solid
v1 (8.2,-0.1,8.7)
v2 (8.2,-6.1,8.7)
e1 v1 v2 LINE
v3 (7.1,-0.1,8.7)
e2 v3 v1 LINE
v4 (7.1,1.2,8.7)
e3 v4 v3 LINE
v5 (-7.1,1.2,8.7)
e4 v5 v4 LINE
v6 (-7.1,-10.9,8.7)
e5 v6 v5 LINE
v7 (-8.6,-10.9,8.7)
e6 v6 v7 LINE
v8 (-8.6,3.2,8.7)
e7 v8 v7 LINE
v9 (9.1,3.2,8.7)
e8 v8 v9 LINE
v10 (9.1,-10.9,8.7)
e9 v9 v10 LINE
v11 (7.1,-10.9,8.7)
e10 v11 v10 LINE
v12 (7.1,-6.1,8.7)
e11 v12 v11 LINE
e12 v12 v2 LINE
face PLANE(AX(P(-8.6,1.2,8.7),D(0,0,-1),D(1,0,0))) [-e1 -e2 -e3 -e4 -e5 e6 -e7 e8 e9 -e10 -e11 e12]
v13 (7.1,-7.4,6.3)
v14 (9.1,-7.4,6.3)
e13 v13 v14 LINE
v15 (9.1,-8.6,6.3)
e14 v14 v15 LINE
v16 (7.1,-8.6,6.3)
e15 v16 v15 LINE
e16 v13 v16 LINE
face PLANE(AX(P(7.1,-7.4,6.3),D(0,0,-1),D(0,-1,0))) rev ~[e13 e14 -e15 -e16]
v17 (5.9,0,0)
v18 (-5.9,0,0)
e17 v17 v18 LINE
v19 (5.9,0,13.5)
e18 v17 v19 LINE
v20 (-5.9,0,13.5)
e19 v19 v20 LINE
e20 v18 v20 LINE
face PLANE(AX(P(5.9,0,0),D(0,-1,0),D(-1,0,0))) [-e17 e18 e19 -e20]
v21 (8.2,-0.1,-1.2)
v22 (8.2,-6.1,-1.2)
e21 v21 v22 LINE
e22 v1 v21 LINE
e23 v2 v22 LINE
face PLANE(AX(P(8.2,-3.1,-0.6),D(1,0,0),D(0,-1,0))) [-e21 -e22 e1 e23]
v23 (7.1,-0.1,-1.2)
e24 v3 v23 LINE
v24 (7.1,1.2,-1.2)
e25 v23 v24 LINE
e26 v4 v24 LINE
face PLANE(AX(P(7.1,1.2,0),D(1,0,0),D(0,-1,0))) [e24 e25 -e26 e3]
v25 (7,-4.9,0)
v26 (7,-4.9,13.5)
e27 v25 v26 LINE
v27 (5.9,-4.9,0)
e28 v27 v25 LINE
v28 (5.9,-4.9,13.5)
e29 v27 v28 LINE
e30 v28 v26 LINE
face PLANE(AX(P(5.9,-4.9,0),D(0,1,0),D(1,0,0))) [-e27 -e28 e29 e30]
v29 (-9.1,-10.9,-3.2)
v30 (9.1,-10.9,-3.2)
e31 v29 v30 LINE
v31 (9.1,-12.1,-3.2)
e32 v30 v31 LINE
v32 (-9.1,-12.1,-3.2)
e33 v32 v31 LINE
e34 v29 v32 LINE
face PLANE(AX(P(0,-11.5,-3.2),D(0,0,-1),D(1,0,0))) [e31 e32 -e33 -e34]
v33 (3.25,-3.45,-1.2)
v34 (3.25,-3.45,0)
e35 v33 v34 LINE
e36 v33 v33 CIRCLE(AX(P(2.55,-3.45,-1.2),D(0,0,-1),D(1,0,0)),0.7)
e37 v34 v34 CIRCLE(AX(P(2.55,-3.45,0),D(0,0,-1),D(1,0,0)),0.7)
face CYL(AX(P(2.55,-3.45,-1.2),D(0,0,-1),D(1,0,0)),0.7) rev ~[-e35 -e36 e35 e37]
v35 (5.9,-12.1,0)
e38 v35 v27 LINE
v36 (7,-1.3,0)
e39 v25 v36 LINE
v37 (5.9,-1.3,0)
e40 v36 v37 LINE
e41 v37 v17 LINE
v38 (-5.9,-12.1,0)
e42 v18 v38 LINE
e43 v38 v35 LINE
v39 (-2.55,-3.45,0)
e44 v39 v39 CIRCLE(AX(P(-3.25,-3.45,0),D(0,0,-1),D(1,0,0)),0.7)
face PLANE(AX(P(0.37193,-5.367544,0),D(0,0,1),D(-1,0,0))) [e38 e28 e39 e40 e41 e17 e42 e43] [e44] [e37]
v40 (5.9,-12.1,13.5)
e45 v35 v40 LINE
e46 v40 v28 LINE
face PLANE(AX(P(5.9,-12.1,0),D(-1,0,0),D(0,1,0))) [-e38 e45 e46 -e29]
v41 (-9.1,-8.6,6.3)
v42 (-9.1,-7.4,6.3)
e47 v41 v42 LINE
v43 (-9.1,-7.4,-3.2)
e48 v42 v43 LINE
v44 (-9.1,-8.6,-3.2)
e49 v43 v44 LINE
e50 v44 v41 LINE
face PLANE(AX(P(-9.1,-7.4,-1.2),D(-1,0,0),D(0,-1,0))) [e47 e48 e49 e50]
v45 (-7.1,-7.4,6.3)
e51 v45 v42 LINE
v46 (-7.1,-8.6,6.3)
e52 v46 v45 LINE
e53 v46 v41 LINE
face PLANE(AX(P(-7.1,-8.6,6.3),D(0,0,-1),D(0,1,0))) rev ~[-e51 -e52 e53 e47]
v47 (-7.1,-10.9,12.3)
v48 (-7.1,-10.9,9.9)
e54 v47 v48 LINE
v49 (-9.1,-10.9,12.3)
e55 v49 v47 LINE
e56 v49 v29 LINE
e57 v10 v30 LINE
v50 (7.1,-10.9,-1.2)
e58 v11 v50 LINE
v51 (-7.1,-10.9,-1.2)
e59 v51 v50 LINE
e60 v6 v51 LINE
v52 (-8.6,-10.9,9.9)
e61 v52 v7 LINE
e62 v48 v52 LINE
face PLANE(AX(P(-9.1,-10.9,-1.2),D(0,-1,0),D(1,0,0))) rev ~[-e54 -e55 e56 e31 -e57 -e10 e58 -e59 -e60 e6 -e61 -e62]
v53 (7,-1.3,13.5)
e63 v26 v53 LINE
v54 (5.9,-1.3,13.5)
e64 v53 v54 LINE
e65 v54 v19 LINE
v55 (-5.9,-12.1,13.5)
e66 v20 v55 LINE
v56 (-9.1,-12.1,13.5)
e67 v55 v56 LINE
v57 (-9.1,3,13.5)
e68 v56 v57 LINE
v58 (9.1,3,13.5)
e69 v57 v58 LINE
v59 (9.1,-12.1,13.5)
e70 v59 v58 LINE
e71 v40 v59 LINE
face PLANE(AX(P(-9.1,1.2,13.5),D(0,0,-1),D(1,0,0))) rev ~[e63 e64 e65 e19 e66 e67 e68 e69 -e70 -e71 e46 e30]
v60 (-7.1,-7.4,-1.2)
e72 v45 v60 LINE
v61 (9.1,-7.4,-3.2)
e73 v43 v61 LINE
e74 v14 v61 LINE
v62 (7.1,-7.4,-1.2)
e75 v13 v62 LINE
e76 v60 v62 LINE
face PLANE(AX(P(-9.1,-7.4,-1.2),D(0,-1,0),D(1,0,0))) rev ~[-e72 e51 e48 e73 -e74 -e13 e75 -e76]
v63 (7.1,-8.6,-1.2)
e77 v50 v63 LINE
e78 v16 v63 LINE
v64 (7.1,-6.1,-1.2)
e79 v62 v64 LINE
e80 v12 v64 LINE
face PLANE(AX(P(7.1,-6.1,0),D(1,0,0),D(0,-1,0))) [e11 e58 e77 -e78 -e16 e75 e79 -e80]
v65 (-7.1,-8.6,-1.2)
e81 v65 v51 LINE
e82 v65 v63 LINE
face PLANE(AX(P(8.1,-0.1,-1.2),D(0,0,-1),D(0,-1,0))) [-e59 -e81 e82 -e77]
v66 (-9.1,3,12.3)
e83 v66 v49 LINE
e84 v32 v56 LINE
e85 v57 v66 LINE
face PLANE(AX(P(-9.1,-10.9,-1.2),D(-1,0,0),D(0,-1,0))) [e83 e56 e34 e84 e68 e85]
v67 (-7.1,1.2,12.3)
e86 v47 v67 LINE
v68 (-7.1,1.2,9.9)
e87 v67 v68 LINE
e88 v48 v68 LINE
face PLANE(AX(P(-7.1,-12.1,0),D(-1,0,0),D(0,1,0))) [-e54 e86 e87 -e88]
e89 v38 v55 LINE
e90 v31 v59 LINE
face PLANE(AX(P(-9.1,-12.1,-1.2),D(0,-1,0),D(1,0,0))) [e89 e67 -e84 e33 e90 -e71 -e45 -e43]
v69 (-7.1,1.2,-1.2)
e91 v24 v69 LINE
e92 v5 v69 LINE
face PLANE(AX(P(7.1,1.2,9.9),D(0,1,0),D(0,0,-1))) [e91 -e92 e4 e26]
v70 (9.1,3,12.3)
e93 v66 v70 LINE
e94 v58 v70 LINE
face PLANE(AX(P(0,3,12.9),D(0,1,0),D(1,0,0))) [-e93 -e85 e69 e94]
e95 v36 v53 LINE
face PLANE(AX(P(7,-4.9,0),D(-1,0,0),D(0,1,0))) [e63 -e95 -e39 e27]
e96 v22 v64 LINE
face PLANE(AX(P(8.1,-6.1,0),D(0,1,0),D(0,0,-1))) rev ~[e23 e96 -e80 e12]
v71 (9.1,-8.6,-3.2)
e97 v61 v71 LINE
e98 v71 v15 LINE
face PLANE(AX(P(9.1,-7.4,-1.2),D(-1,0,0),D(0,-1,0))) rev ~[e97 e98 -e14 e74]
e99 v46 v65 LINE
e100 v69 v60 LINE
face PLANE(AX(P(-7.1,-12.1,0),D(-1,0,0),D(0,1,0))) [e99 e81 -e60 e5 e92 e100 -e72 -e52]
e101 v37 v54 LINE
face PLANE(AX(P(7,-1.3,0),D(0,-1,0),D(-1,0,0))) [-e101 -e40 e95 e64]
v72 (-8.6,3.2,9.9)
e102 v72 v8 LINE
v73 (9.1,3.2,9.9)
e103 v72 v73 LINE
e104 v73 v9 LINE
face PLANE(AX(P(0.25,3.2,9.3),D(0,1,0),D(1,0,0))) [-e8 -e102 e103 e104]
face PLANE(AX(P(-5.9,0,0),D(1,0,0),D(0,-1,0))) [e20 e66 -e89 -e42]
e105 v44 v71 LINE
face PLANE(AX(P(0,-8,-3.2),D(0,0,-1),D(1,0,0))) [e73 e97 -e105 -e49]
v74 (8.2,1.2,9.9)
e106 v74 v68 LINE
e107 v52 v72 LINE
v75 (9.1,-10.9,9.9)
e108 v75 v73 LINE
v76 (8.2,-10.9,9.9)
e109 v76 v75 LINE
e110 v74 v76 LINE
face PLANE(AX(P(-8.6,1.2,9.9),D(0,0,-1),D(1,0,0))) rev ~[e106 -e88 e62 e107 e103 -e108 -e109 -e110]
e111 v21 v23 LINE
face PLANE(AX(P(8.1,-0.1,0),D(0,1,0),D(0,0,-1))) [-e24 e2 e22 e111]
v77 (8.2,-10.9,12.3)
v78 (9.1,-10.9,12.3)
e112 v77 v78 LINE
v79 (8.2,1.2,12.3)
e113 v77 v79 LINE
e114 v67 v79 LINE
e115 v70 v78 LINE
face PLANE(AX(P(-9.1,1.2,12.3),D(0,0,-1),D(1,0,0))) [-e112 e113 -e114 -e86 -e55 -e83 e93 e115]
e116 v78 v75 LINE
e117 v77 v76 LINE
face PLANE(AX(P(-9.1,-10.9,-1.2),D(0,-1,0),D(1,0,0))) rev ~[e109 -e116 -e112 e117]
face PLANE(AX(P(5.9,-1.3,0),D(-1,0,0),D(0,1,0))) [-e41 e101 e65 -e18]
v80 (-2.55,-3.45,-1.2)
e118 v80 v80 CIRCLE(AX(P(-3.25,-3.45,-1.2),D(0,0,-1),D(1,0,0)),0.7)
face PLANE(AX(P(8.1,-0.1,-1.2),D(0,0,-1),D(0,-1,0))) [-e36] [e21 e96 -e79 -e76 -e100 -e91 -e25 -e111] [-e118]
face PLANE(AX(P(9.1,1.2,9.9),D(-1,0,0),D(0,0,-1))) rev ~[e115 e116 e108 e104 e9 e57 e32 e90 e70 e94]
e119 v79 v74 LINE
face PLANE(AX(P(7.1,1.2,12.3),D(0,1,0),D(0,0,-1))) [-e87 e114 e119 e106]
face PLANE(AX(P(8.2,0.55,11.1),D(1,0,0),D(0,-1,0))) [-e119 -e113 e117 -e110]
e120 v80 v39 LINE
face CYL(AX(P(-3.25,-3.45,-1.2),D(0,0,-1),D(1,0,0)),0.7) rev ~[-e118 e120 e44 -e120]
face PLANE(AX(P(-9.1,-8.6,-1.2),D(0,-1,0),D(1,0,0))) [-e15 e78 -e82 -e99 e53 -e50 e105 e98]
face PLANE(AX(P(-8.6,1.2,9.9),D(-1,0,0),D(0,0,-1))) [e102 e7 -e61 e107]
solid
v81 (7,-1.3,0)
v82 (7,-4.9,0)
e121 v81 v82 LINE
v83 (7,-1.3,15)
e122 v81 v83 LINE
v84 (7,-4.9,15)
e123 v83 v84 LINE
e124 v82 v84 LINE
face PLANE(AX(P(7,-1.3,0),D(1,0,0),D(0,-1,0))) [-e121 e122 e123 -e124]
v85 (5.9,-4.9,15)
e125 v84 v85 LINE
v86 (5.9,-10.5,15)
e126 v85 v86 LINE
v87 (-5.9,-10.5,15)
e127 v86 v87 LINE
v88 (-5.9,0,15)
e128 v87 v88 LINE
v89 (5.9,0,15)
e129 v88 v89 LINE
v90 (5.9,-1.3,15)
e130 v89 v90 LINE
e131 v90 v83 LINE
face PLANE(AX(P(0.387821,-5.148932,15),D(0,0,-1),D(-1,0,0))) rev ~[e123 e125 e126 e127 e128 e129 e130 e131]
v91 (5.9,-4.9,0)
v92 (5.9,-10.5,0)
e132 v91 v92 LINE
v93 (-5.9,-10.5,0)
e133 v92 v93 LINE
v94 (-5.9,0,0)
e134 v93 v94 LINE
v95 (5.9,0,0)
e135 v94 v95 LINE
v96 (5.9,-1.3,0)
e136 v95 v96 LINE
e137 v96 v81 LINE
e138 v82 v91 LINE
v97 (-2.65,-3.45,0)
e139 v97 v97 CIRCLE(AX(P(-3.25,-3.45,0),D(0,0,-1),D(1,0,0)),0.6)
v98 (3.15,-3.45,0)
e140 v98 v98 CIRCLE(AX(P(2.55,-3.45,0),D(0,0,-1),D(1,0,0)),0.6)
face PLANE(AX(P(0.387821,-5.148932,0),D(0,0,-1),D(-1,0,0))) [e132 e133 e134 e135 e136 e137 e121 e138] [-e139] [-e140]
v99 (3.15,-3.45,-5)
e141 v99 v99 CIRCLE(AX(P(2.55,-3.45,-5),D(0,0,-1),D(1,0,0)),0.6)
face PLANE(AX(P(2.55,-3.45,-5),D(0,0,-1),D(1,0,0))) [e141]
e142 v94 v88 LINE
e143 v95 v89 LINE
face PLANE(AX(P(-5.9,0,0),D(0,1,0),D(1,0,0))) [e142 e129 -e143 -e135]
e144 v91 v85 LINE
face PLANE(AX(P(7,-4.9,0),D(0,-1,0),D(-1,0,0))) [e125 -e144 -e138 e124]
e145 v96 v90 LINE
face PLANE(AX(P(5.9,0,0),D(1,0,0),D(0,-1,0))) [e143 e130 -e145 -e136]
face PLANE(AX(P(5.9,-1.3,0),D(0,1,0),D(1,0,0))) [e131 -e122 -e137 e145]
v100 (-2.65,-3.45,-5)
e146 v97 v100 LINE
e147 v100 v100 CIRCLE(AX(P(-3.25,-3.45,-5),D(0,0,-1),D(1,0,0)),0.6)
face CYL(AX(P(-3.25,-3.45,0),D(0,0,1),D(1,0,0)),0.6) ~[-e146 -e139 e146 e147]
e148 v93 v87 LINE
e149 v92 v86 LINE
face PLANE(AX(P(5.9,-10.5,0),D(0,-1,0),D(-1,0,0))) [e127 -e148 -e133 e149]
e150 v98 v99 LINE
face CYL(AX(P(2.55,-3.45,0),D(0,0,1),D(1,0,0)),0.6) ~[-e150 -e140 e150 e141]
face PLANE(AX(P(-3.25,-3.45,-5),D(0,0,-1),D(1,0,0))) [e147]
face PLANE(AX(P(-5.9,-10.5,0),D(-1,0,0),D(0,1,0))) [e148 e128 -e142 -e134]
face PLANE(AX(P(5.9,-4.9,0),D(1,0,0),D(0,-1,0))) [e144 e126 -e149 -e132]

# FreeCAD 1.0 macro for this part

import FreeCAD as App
import Part
import Sketcher
from FreeCAD import Vector
Q = App.Units.Quantity


def add_polygon(sketch, points):
    """Adds a closed chain of lines whose ends are joined by coincident constraints."""
    first, n = sketch.GeometryCount, len(points)
    for a, b in zip(points, points[1:] + points[:1]):
        sketch.addGeometry(Part.LineSegment(App.Vector(*a, 0), App.Vector(*b, 0)), False)
    for i in range(n):
        sketch.addConstraint(Sketcher.Constraint("Coincident", first + i, 2, first + (i + 1) % n, 1))

doc = App.newDocument("Part")
body = doc.addObject("PartDesign::Body", "Body")

# Sketch on XY plane
sketch1 = body.newObject("Sketcher::SketchObject", "Sketch")
sketch1.AttachmentSupport = (doc.getObject("XY_Plane"), [""])
sketch1.MapMode = "FlatFace"
add_polygon(sketch1, [(5.9, 0), (-5.9, 0), (-5.9, -10.5), (5.9, -10.5), (5.9, -4.9), (7, -4.9), (7, -1.3), (5.9, -1.3)])  # lines 0-7
sketch1.addConstraint([
    Sketcher.Constraint("Horizontal", 0),
    Sketcher.Constraint("Vertical", 1),
    Sketcher.Constraint("Horizontal", 2),
    Sketcher.Constraint("Vertical", 3),
    Sketcher.Constraint("Horizontal", 4),
    Sketcher.Constraint("Vertical", 5),
    Sketcher.Constraint("Horizontal", 6),
    Sketcher.Constraint("Vertical", 7),
    Sketcher.Constraint("Symmetric", 0, 2, 7, 2, -1, 1),
    Sketcher.Constraint("Vertical", 3, 2, 6, 2),
    Sketcher.Constraint("DistanceX", 0, 2, 0, 1, Q("11.8 mm")),
    Sketcher.Constraint("DistanceX", 4, 1, 4, 2, Q("1.1 mm")),
    Sketcher.Constraint("DistanceY", 1, 2, 1, 1, Q("10.5 mm")),
    Sketcher.Constraint("DistanceY", 3, 1, 3, 2, Q("5.6 mm")),
    Sketcher.Constraint("DistanceY", 5, 1, 5, 2, Q("3.6 mm")),
])
pad1 = body.newObject("PartDesign::Pad", "Pad")
pad1.Profile = sketch1
pad1.Length = 15

# Sketch on XY plane
sketch2 = body.newObject("Sketcher::SketchObject", "Sketch001")
sketch2.AttachmentSupport = (doc.getObject("XY_Plane"), [""])
sketch2.MapMode = "FlatFace"
sketch2.addGeometry(Part.Circle(Vector(2.5, -3.5, 0), Vector(0, 0, 1), 0.6), False)
sketch2.addConstraint([
    Sketcher.Constraint("Diameter", 0, Q("1.2 mm")),
    Sketcher.Constraint("DistanceX", -1, 1, 0, 3, Q("2.55 mm")),
    Sketcher.Constraint("DistanceY", 0, 3, -1, 1, Q("3.45 mm")),
])
pad2 = body.newObject("PartDesign::Pad", "Pad001")
pad2.Profile = sketch2
pad2.Length = 5
pad2.Reversed = True

# Sketch on XY plane
sketch3 = body.newObject("Sketcher::SketchObject", "Sketch002")
sketch3.AttachmentSupport = (doc.getObject("XY_Plane"), [""])
sketch3.MapMode = "FlatFace"
sketch3.addGeometry(Part.Circle(Vector(-3.2, -3.5, 0), Vector(0, 0, 1), 0.6), False)
sketch3.addConstraint([
    Sketcher.Constraint("Diameter", 0, Q("1.2 mm")),
    Sketcher.Constraint("DistanceX", 0, 3, -1, 1, Q("3.25 mm")),
    Sketcher.Constraint("DistanceY", 0, 3, -1, 1, Q("3.45 mm")),
])
pad3 = body.newObject("PartDesign::Pad", "Pad002")
pad3.Profile = sketch3
pad3.Length = 5
pad3.Reversed = True
body2 = doc.addObject("PartDesign::Body", "Body001")

# Sketch on XY plane
sketch4 = body2.newObject("Sketcher::SketchObject", "Sketch003")
sketch4.AttachmentSupport = (doc.getObject("XY_Plane001"), [""])
sketch4.MapMode = "FlatFace"
add_polygon(sketch4, [(-7.1, -12.1), (-7.1, 1.2), (7.1, 1.2), (7.1, -0.1), (8.1, -0.1), (8.1, -6.1), (7.1, -6.1), (7.1, -12.1)])  # lines 0-7
sketch4.addConstraint([
    Sketcher.Constraint("Vertical", 0),
    Sketcher.Constraint("Horizontal", 1),
    Sketcher.Constraint("Vertical", 2),
    Sketcher.Constraint("Horizontal", 3),
    Sketcher.Constraint("Vertical", 4),
    Sketcher.Constraint("Horizontal", 5),
    Sketcher.Constraint("Vertical", 6),
    Sketcher.Constraint("Horizontal", 7),
    Sketcher.Constraint("Vertical", 2, 2, 5, 2),
    Sketcher.Constraint("Equal", 4, 6),
    Sketcher.Constraint("DistanceX", 3, 1, 3, 2, Q("1 mm")),
    Sketcher.Constraint("DistanceY", 4, 2, 4, 1, Q("6 mm")),
    Sketcher.Constraint("DistanceX", 1, 1, 1, 2, Q("14.2 mm")),
    Sketcher.Constraint("DistanceY", 0, 1, 0, 2, Q("13.3 mm")),
    Sketcher.Constraint("DistanceX", 0, 2, -1, 1, Q("7.1 mm")),
    Sketcher.Constraint("DistanceY", -1, 1, 0, 2, Q("1.2 mm")),
])
pad4 = body2.newObject("PartDesign::Pad", "Pad003")
pad4.Profile = sketch4
pad4.Length = 1.2
pad4.Reversed = True

# Sketch on XY plane
sketch5 = body2.newObject("Sketcher::SketchObject", "Sketch004")
sketch5.AttachmentSupport = (doc.getObject("XY_Plane001"), [""])
sketch5.MapMode = "FlatFace"
add_polygon(sketch5, [(-7.1, 1.2), (-7.1, -12.1), (-5.9, -12.1), (-5.9, 0), (5.9, 0), (5.9, -1.3), (7, -1.3), (7, -4.9), (5.9, -4.9), (5.9, -12.1), (7.1, -12.1), (7.1, -6.1), (8.2, -6.1), (8.2, -0.1), (7.1, -0.1), (7.1, 1.2)])  # lines 0-15
sketch5.addConstraint([
    Sketcher.Constraint("Vertical", 0),
    Sketcher.Constraint("Horizontal", 1),
    Sketcher.Constraint("Vertical", 2),
    Sketcher.Constraint("Horizontal", 3),
    Sketcher.Constraint("Vertical", 4),
    Sketcher.Constraint("Horizontal", 5),
    Sketcher.Constraint("Vertical", 6),
    Sketcher.Constraint("Horizontal", 7),
    Sketcher.Constraint("Vertical", 8),
    Sketcher.Constraint("Horizontal", 9),
    Sketcher.Constraint("Vertical", 10),
    Sketcher.Constraint("Horizontal", 11),
    Sketcher.Constraint("Vertical", 12),
    Sketcher.Constraint("Horizontal", 13),
    Sketcher.Constraint("Vertical", 14),
    Sketcher.Constraint("Horizontal", 15),
    Sketcher.Constraint("Symmetric", 2, 2, 3, 2, -1, 1),
    Sketcher.Constraint("Symmetric", 1, 2, 8, 2, -2),
    Sketcher.Constraint("Vertical", 10, 2, 13, 2),
    Sketcher.Constraint("Equal", 1, 9),
    Sketcher.Constraint("Equal", 7, 11),
    Sketcher.Constraint("Equal", 10, 12),
    Sketcher.Constraint("Equal", 4, 14),
    Sketcher.Constraint("DistanceY", 10, 1, 10, 2, Q("6 mm")),
    Sketcher.Constraint("DistanceX", 1, 1, 1, 2, Q("1.2 mm")),
    Sketcher.Constraint("DistanceX", 3, 1, 3, 2, Q("11.8 mm")),
    Sketcher.Constraint("DistanceX", 5, 1, 5, 2, Q("1.1 mm")),
    Sketcher.Constraint("DistanceY", 0, 2, 0, 1, Q("13.3 mm")),
    Sketcher.Constraint("DistanceY", 2, 1, 2, 2, Q("12.1 mm")),
    Sketcher.Constraint("DistanceY", 6, 2, 6, 1, Q("3.6 mm")),
])
pad5 = body2.newObject("PartDesign::Pad", "Pad004")
pad5.Profile = sketch5
pad5.Length = 13.5

# Sketch on YZ plane
sketch6 = body2.newObject("Sketcher::SketchObject", "Sketch005")
sketch6.AttachmentSupport = (doc.getObject("YZ_Plane001"), [""])
sketch6.MapMode = "FlatFace"
sketch6.AttachmentOffset = App.Placement(Vector(0, 0, 7.1), App.Rotation())
add_polygon(sketch6, [(-10.9, -1.2), (-10.9, 13.5), (-12.1, 13.5), (-12.1, -1.2)])  # lines 0-3
sketch6.addConstraint([
    Sketcher.Constraint("Vertical", 0),
    Sketcher.Constraint("Horizontal", 1),
    Sketcher.Constraint("Vertical", 2),
    Sketcher.Constraint("Horizontal", 3),
    Sketcher.Constraint("DistanceX", 1, 2, 1, 1, Q("1.2 mm")),
    Sketcher.Constraint("DistanceY", 0, 1, 0, 2, Q("14.7 mm")),
    Sketcher.Constraint("DistanceX", 0, 2, -1, 1, Q("10.9 mm")),
    Sketcher.Constraint("DistanceY", -1, 1, 0, 2, Q("13.5 mm")),
])
pad6 = body2.newObject("PartDesign::Pad", "Pad005")
pad6.Profile = sketch6
pad6.Length = 2

# Sketch on YZ plane
sketch7 = body2.newObject("Sketcher::SketchObject", "Sketch006")
sketch7.AttachmentSupport = (doc.getObject("YZ_Plane001"), [""])
sketch7.MapMode = "FlatFace"
sketch7.AttachmentOffset = App.Placement(Vector(0, 0, -7.1), App.Rotation())
add_polygon(sketch7, [(-12.1, -1.2), (-12.1, 13.5), (-10.9, 13.5), (-10.9, -1.2)])  # lines 0-3
sketch7.addConstraint([
    Sketcher.Constraint("Vertical", 0),
    Sketcher.Constraint("Horizontal", 1),
    Sketcher.Constraint("Vertical", 2),
    Sketcher.Constraint("Horizontal", 3),
    Sketcher.Constraint("DistanceX", 1, 1, 1, 2, Q("1.2 mm")),
    Sketcher.Constraint("DistanceY", 0, 1, 0, 2, Q("14.7 mm")),
    Sketcher.Constraint("DistanceX", 0, 2, -1, 1, Q("12.1 mm")),
    Sketcher.Constraint("DistanceY", -1, 1, 0, 2, Q("13.5 mm")),
])
pad7 = body2.newObject("PartDesign::Pad", "Pad006")
pad7.Profile = sketch7
pad7.Length = 2
pad7.Reversed = True

# Sketch on XY plane
sketch8 = body2.newObject("Sketcher::SketchObject", "Sketch007")
sketch8.AttachmentSupport = (doc.getObject("XY_Plane001"), [""])
sketch8.MapMode = "FlatFace"
sketch8.AttachmentOffset = App.Placement(Vector(0, 0, 13.5), App.Rotation())
add_polygon(sketch8, [(7.1, 1.2), (7.1, -0.1), (8.2, -0.1), (8.2, -6.1), (7.1, -6.1), (7.1, -10.9), (9.1, -10.9), (9.1, 1.2)])  # lines 0-7
sketch8.addConstraint([
    Sketcher.Constraint("Vertical", 0),
    Sketcher.Constraint("Horizontal", 1),
    Sketcher.Constraint("Vertical", 2),
    Sketcher.Constraint("Horizontal", 3),
    Sketcher.Constraint("Vertical", 4),
    Sketcher.Constraint("Horizontal", 5),
    Sketcher.Constraint("Vertical", 6),
    Sketcher.Constraint("Horizontal", 7),
    Sketcher.Constraint("Vertical", 0, 2, 3, 2),
    Sketcher.Constraint("DistanceX", 5, 1, 5, 2, Q("2 mm")),
    Sketcher.Constraint("DistanceY", 2, 2, 2, 1, Q("6 mm")),
    Sketcher.Constraint("DistanceX", 1, 1, 1, 2, Q("1.1 mm")),
    Sketcher.Constraint("DistanceY", 0, 2, 0, 1, Q("1.3 mm")),
    Sketcher.Constraint("DistanceY", 4, 2, 4, 1, Q("4.8 mm")),
    Sketcher.Constraint("DistanceX", -1, 1, 0, 2, Q("7.1 mm")),
    Sketcher.Constraint("DistanceY", 0, 2, -1, 1, Q("0.1 mm")),
])
pad8 = body2.newObject("PartDesign::Pad", "Pad007")
pad8.Profile = sketch8
pad8.Length = 1.2
pad8.Reversed = True

# Sketch on XY plane
sketch9 = body2.newObject("Sketcher::SketchObject", "Sketch008")
sketch9.AttachmentSupport = (doc.getObject("XY_Plane001"), [""])
sketch9.MapMode = "FlatFace"
sketch9.AttachmentOffset = App.Placement(Vector(0, 0, 13.5), App.Rotation())
add_polygon(sketch9, [(-9.1, 1.2), (-9.1, -10.9), (-7.1, -10.9), (-7.1, 1.2)])  # lines 0-3
sketch9.addConstraint([
    Sketcher.Constraint("Vertical", 0),
    Sketcher.Constraint("Horizontal", 1),
    Sketcher.Constraint("Vertical", 2),
    Sketcher.Constraint("Horizontal", 3),
    Sketcher.Constraint("DistanceX", 1, 1, 1, 2, Q("2 mm")),
    Sketcher.Constraint("DistanceY", 0, 2, 0, 1, Q("12.1 mm")),
    Sketcher.Constraint("DistanceX", 0, 2, -1, 1, Q("9.1 mm")),
    Sketcher.Constraint("DistanceY", 0, 2, -1, 1, Q("10.9 mm")),
])
pad9 = body2.newObject("PartDesign::Pad", "Pad008")
pad9.Profile = sketch9
pad9.Length = 1.2
pad9.Reversed = True

# Sketch on XZ plane
sketch10 = body2.newObject("Sketcher::SketchObject", "Sketch009")
sketch10.AttachmentSupport = (doc.getObject("XZ_Plane001"), [""])
sketch10.MapMode = "FlatFace"
sketch10.AttachmentOffset = App.Placement(Vector(0, 0, -1.2), App.Rotation())
add_polygon(sketch10, [(-9.1, 12.3), (-9.1, 13.5), (9.1, 13.5), (9.1, 12.3)])  # lines 0-3
sketch10.addConstraint([
    Sketcher.Constraint("Vertical", 0),
    Sketcher.Constraint("Horizontal", 1),
    Sketcher.Constraint("Vertical", 2),
    Sketcher.Constraint("Horizontal", 3),
    Sketcher.Constraint("DistanceX", 1, 1, 1, 2, Q("18.2 mm")),
    Sketcher.Constraint("DistanceY", 0, 1, 0, 2, Q("1.2 mm")),
    Sketcher.Constraint("DistanceX", 0, 2, -1, 1, Q("9.1 mm")),
    Sketcher.Constraint("DistanceY", -1, 1, 0, 2, Q("13.5 mm")),
])
pad10 = body2.newObject("PartDesign::Pad", "Pad009")
pad10.Profile = sketch10
pad10.Length = 2
pad10.Reversed = True

# Sketch on XY plane
sketch11 = body2.newObject("Sketcher::SketchObject", "Sketch010")
sketch11.AttachmentSupport = (doc.getObject("XY_Plane001"), [""])
sketch11.MapMode = "FlatFace"
sketch11.AttachmentOffset = App.Placement(Vector(0, 0, -1.2), App.Rotation())
add_polygon(sketch11, [(-9.1, -12.1), (-9.1, -10.9), (9.1, -10.9), (9.1, -12.1)])  # lines 0-3
sketch11.addConstraint([
    Sketcher.Constraint("Vertical", 0),
    Sketcher.Constraint("Horizontal", 1),
    Sketcher.Constraint("Vertical", 2),
    Sketcher.Constraint("Horizontal", 3),
    Sketcher.Constraint("DistanceX", 1, 1, 1, 2, Q("18.2 mm")),
    Sketcher.Constraint("DistanceY", 0, 1, 0, 2, Q("1.2 mm")),
    Sketcher.Constraint("DistanceX", 0, 2, -1, 1, Q("9.1 mm")),
    Sketcher.Constraint("DistanceY", 0, 2, -1, 1, Q("10.9 mm")),
])
pad11 = body2.newObject("PartDesign::Pad", "Pad010")
pad11.Profile = sketch11
pad11.Length = 2
pad11.Reversed = True

# Sketch on YZ plane
sketch12 = body2.newObject("Sketcher::SketchObject", "Sketch011")
sketch12.AttachmentSupport = (doc.getObject("YZ_Plane001"), [""])
sketch12.MapMode = "FlatFace"
sketch12.AttachmentOffset = App.Placement(Vector(0, 0, 8.1), App.Rotation())
add_polygon(sketch12, [(-0.1, -1.2), (-0.1, 0), (-6.1, 0), (-6.1, -1.2)])  # lines 0-3
sketch12.addConstraint([
    Sketcher.Constraint("Vertical", 0),
    Sketcher.Constraint("Horizontal", 1),
    Sketcher.Constraint("Vertical", 2),
    Sketcher.Constraint("Horizontal", 3),
    Sketcher.Constraint("PointOnObject", 0, 2, -1),
    Sketcher.Constraint("DistanceX", 1, 2, 1, 1, Q("6 mm")),
    Sketcher.Constraint("DistanceY", 0, 1, 0, 2, Q("1.2 mm")),
    Sketcher.Constraint("DistanceX", 0, 2, -1, 1, Q("0.1 mm")),
])
pad12 = body2.newObject("PartDesign::Pad", "Pad011")
pad12.Profile = sketch12
pad12.Length = 0.1

# Sketch on YZ plane
sketch13 = body2.newObject("Sketcher::SketchObject", "Sketch012")
sketch13.AttachmentSupport = (doc.getObject("YZ_Plane001"), [""])
sketch13.MapMode = "FlatFace"
sketch13.AttachmentOffset = App.Placement(Vector(0, 0, 7.1), App.Rotation())
add_polygon(sketch13, [(-7.4, -1.2), (-7.4, 6.3), (-8.6, 6.3), (-8.6, -1.2)])  # lines 0-3
sketch13.addConstraint([
    Sketcher.Constraint("Vertical", 0),
    Sketcher.Constraint("Horizontal", 1),
    Sketcher.Constraint("Vertical", 2),
    Sketcher.Constraint("Horizontal", 3),
    Sketcher.Constraint("DistanceX", 1, 2, 1, 1, Q("1.2 mm")),
    Sketcher.Constraint("DistanceY", 0, 1, 0, 2, Q("7.5 mm")),
    Sketcher.Constraint("DistanceX", 0, 2, -1, 1, Q("7.4 mm")),
    Sketcher.Constraint("DistanceY", -1, 1, 0, 2, Q("6.3 mm")),
])
pad13 = body2.newObject("PartDesign::Pad", "Pad012")
pad13.Profile = sketch13
pad13.Length = 2

# Sketch on YZ plane
sketch14 = body2.newObject("Sketcher::SketchObject", "Sketch013")
sketch14.AttachmentSupport = (doc.getObject("YZ_Plane001"), [""])
sketch14.MapMode = "FlatFace"
sketch14.AttachmentOffset = App.Placement(Vector(0, 0, -7.1), App.Rotation())
add_polygon(sketch14, [(-8.6, -1.2), (-8.6, 6.3), (-7.4, 6.3), (-7.4, -1.2)])  # lines 0-3
sketch14.addConstraint([
    Sketcher.Constraint("Vertical", 0),
    Sketcher.Constraint("Horizontal", 1),
    Sketcher.Constraint("Vertical", 2),
    Sketcher.Constraint("Horizontal", 3),
    Sketcher.Constraint("DistanceX", 1, 1, 1, 2, Q("1.2 mm")),
    Sketcher.Constraint("DistanceY", 0, 1, 0, 2, Q("7.5 mm")),
    Sketcher.Constraint("DistanceX", 0, 2, -1, 1, Q("8.6 mm")),
    Sketcher.Constraint("DistanceY", -1, 1, 0, 2, Q("6.3 mm")),
])
pad14 = body2.newObject("PartDesign::Pad", "Pad013")
pad14.Profile = sketch14
pad14.Length = 2
pad14.Reversed = True

# Sketch on XY plane
sketch15 = body2.newObject("Sketcher::SketchObject", "Sketch014")
sketch15.AttachmentSupport = (doc.getObject("XY_Plane001"), [""])
sketch15.MapMode = "FlatFace"
sketch15.AttachmentOffset = App.Placement(Vector(0, 0, -1.2), App.Rotation())
add_polygon(sketch15, [(-9.1, -8.6), (-9.1, -7.4), (9.1, -7.4), (9.1, -8.6)])  # lines 0-3
sketch15.addConstraint([
    Sketcher.Constraint("Vertical", 0),
    Sketcher.Constraint("Horizontal", 1),
    Sketcher.Constraint("Vertical", 2),
    Sketcher.Constraint("Horizontal", 3),
    Sketcher.Constraint("DistanceX", 1, 1, 1, 2, Q("18.2 mm")),
    Sketcher.Constraint("DistanceY", 0, 1, 0, 2, Q("1.2 mm")),
    Sketcher.Constraint("DistanceX", 0, 2, -1, 1, Q("9.1 mm")),
    Sketcher.Constraint("DistanceY", 0, 2, -1, 1, Q("7.4 mm")),
])
pad15 = body2.newObject("PartDesign::Pad", "Pad014")
pad15.Profile = sketch15
pad15.Length = 2
pad15.Reversed = True

# Sketch on YZ plane
sketch16 = body2.newObject("Sketcher::SketchObject", "Sketch015")
sketch16.AttachmentSupport = (doc.getObject("YZ_Plane001"), [""])
sketch16.MapMode = "FlatFace"
sketch16.AttachmentOffset = App.Placement(Vector(0, 0, -7.1), App.Rotation())
add_polygon(sketch16, [(-10.9, 8.7), (-10.9, 9.9), (1.2, 9.9), (1.2, 8.7)])  # lines 0-3
sketch16.addConstraint([
    Sketcher.Constraint("Vertical", 0),
    Sketcher.Constraint("Horizontal", 1),
    Sketcher.Constraint("Vertical", 2),
    Sketcher.Constraint("Horizontal", 3),
    Sketcher.Constraint("DistanceX", 1, 1, 1, 2, Q("12.1 mm")),
    Sketcher.Constraint("DistanceY", 0, 1, 0, 2, Q("1.2 mm")),
    Sketcher.Constraint("DistanceX", 0, 2, -1, 1, Q("10.9 mm")),
    Sketcher.Constraint("DistanceY", -1, 1, 0, 2, Q("9.9 mm")),
])
pad16 = body2.newObject("PartDesign::Pad", "Pad015")
pad16.Profile = sketch16
pad16.Length = 1.5
pad16.Reversed = True

# Sketch on YZ plane
sketch17 = body2.newObject("Sketcher::SketchObject", "Sketch016")
sketch17.AttachmentSupport = (doc.getObject("YZ_Plane001"), [""])
sketch17.MapMode = "FlatFace"
sketch17.AttachmentOffset = App.Placement(Vector(0, 0, 7.1), App.Rotation())
add_polygon(sketch17, [(-6.1, 8.7), (-6.1, 9.9), (-10.9, 9.9), (-10.9, 8.7)])  # lines 0-3
sketch17.addConstraint([
    Sketcher.Constraint("Vertical", 0),
    Sketcher.Constraint("Horizontal", 1),
    Sketcher.Constraint("Vertical", 2),
    Sketcher.Constraint("Horizontal", 3),
    Sketcher.Constraint("DistanceX", 1, 2, 1, 1, Q("4.8 mm")),
    Sketcher.Constraint("DistanceY", 0, 1, 0, 2, Q("1.2 mm")),
    Sketcher.Constraint("DistanceX", 0, 2, -1, 1, Q("6.1 mm")),
    Sketcher.Constraint("DistanceY", -1, 1, 0, 2, Q("9.9 mm")),
])
pad17 = body2.newObject("PartDesign::Pad", "Pad016")
pad17.Profile = sketch17
pad17.Length = 2

# Sketch on YZ plane
sketch18 = body2.newObject("Sketcher::SketchObject", "Sketch017")
sketch18.AttachmentSupport = (doc.getObject("YZ_Plane001"), [""])
sketch18.MapMode = "FlatFace"
sketch18.AttachmentOffset = App.Placement(Vector(0, 0, 7.1), App.Rotation())
add_polygon(sketch18, [(1.2, 8.7), (1.2, 9.9), (-0.1, 9.9), (-0.1, 8.7)])  # lines 0-3
sketch18.addConstraint([
    Sketcher.Constraint("Vertical", 0),
    Sketcher.Constraint("Horizontal", 1),
    Sketcher.Constraint("Vertical", 2),
    Sketcher.Constraint("Horizontal", 3),
    Sketcher.Constraint("DistanceX", 1, 2, 1, 1, Q("1.3 mm")),
    Sketcher.Constraint("DistanceY", 0, 1, 0, 2, Q("1.2 mm")),
    Sketcher.Constraint("DistanceX", -1, 1, 0, 2, Q("1.2 mm")),
    Sketcher.Constraint("DistanceY", -1, 1, 0, 2, Q("9.9 mm")),
])
pad18 = body2.newObject("PartDesign::Pad", "Pad017")
pad18.Profile = sketch18
pad18.Length = 2

# Sketch on YZ plane
sketch19 = body2.newObject("Sketcher::SketchObject", "Sketch018")
sketch19.AttachmentSupport = (doc.getObject("YZ_Plane001"), [""])
sketch19.MapMode = "FlatFace"
sketch19.AttachmentOffset = App.Placement(Vector(0, 0, 8.2), App.Rotation())
add_polygon(sketch19, [(-0.1, 8.7), (-0.1, 9.9), (-6.1, 9.9), (-6.1, 8.7)])  # lines 0-3
sketch19.addConstraint([
    Sketcher.Constraint("Vertical", 0),
    Sketcher.Constraint("Horizontal", 1),
    Sketcher.Constraint("Vertical", 2),
    Sketcher.Constraint("Horizontal", 3),
    Sketcher.Constraint("DistanceX", 1, 2, 1, 1, Q("6 mm")),
    Sketcher.Constraint("DistanceY", 0, 1, 0, 2, Q("1.2 mm")),
    Sketcher.Constraint("DistanceX", 0, 2, -1, 1, Q("0.1 mm")),
    Sketcher.Constraint("DistanceY", -1, 1, 0, 2, Q("9.9 mm")),
])
pad19 = body2.newObject("PartDesign::Pad", "Pad018")
pad19.Profile = sketch19
pad19.Length = 0.9

# Sketch on XZ plane
sketch20 = body2.newObject("Sketcher::SketchObject", "Sketch019")
sketch20.AttachmentSupport = (doc.getObject("XZ_Plane001"), [""])
sketch20.MapMode = "FlatFace"
sketch20.AttachmentOffset = App.Placement(Vector(0, 0, -1.2), App.Rotation())
add_polygon(sketch20, [(-8.6, 8.7), (-8.6, 9.9), (9.1, 9.9), (9.1, 8.7)])  # lines 0-3
sketch20.addConstraint([
    Sketcher.Constraint("Vertical", 0),
    Sketcher.Constraint("Horizontal", 1),
    Sketcher.Constraint("Vertical", 2),
    Sketcher.Constraint("Horizontal", 3),
    Sketcher.Constraint("DistanceX", 1, 1, 1, 2, Q("17.7 mm")),
    Sketcher.Constraint("DistanceY", 0, 1, 0, 2, Q("1.2 mm")),
    Sketcher.Constraint("DistanceX", 0, 2, -1, 1, Q("8.6 mm")),
    Sketcher.Constraint("DistanceY", -1, 1, 0, 2, Q("9.9 mm")),
])
pad20 = body2.newObject("PartDesign::Pad", "Pad019")
pad20.Profile = sketch20
pad20.Length = 2
pad20.Reversed = True

# Sketch on XY plane
sketch21 = body2.newObject("Sketcher::SketchObject", "Sketch020")
sketch21.AttachmentSupport = (doc.getObject("XY_Plane001"), [""])
sketch21.MapMode = "FlatFace"
sketch21.AttachmentOffset = App.Placement(Vector(0, 0, -1.2), App.Rotation())
sketch21.addGeometry(Part.Circle(Vector(-3.2, -3.5, 0), Vector(0, 0, 1), 0.6), False)
sketch21.addConstraint([
    Sketcher.Constraint("Diameter", 0, Q("1.2 mm")),
    Sketcher.Constraint("DistanceX", 0, 3, -1, 1, Q("3.25 mm")),
    Sketcher.Constraint("DistanceY", 0, 3, -1, 1, Q("3.45 mm")),
])
pocket1 = body2.newObject("PartDesign::Pocket", "Pocket")
pocket1.Profile = sketch21
pocket1.Length = 5
pocket1.Reversed = True

# Sketch on XY plane
sketch22 = body2.newObject("Sketcher::SketchObject", "Sketch021")
sketch22.AttachmentSupport = (doc.getObject("XY_Plane001"), [""])
sketch22.MapMode = "FlatFace"
sketch22.AttachmentOffset = App.Placement(Vector(0, 0, -1.2), App.Rotation())
sketch22.addGeometry(Part.Circle(Vector(2.5, -3.5, 0), Vector(0, 0, 1), 0.6), False)
sketch22.addConstraint([
    Sketcher.Constraint("Diameter", 0, Q("1.2 mm")),
    Sketcher.Constraint("DistanceX", -1, 1, 0, 3, Q("2.55 mm")),
    Sketcher.Constraint("DistanceY", 0, 3, -1, 1, Q("3.45 mm")),
])
pocket2 = body2.newObject("PartDesign::Pocket", "Pocket001")
pocket2.Profile = sketch22
pocket2.Length = 5
pocket2.Reversed = True

# Sketch on YZ plane
sketch23 = body2.newObject("Sketcher::SketchObject", "Sketch022")
sketch23.AttachmentSupport = (doc.getObject("YZ_Plane001"), [""])
sketch23.MapMode = "FlatFace"
sketch23.AttachmentOffset = App.Placement(Vector(0, 0, 7.1), App.Rotation())
add_polygon(sketch23, [(-6.1, 9.9), (-6.1, 12.3), (-10.9, 12.3), (-10.9, 9.9)])  # lines 0-3
sketch23.addConstraint([
    Sketcher.Constraint("Vertical", 0),
    Sketcher.Constraint("Horizontal", 1),
    Sketcher.Constraint("Vertical", 2),
    Sketcher.Constraint("Horizontal", 3),
    Sketcher.Constraint("DistanceX", 1, 2, 1, 1, Q("4.8 mm")),
    Sketcher.Constraint("DistanceY", 0, 1, 0, 2, Q("2.4 mm")),
    Sketcher.Constraint("DistanceX", 0, 2, -1, 1, Q("6.1 mm")),
    Sketcher.Constraint("DistanceY", -1, 1, 0, 2, Q("12.3 mm")),
])
pad21 = body2.newObject("PartDesign::Pad", "Pad020")
pad21.Profile = sketch23
pad21.Length = 1.1

# Sketch on YZ plane
sketch24 = body2.newObject("Sketcher::SketchObject", "Sketch023")
sketch24.AttachmentSupport = (doc.getObject("YZ_Plane001"), [""])
sketch24.MapMode = "FlatFace"
sketch24.AttachmentOffset = App.Placement(Vector(0, 0, 7.1), App.Rotation())
add_polygon(sketch24, [(1.2, 9.9), (1.2, 12.3), (-0.1, 12.3), (-0.1, 9.9)])  # lines 0-3
sketch24.addConstraint([
    Sketcher.Constraint("Vertical", 0),
    Sketcher.Constraint("Horizontal", 1),
    Sketcher.Constraint("Vertical", 2),
    Sketcher.Constraint("Horizontal", 3),
    Sketcher.Constraint("DistanceX", 1, 2, 1, 1, Q("1.3 mm")),
    Sketcher.Constraint("DistanceY", 0, 1, 0, 2, Q("2.4 mm")),
    Sketcher.Constraint("DistanceX", -1, 1, 0, 2, Q("1.2 mm")),
    Sketcher.Constraint("DistanceY", -1, 1, 0, 2, Q("12.3 mm")),
])
pad22 = body2.newObject("PartDesign::Pad", "Pad021")
pad22.Profile = sketch24
pad22.Length = 1.1

# Sketch on XY plane
sketch25 = body2.newObject("Sketcher::SketchObject", "Sketch024")
sketch25.AttachmentSupport = (doc.getObject("XY_Plane001"), [""])
sketch25.MapMode = "FlatFace"
sketch25.AttachmentOffset = App.Placement(Vector(0, 0, -1.2), App.Rotation())
sketch25.addGeometry(Part.Circle(Vector(2.5, -3.5, 0), Vector(0, 0, 1), 0.7), False)
sketch25.addConstraint([
    Sketcher.Constraint("Diameter", 0, Q("1.4 mm")),
    Sketcher.Constraint("DistanceX", -1, 1, 0, 3, Q("2.55 mm")),
    Sketcher.Constraint("DistanceY", 0, 3, -1, 1, Q("3.45 mm")),
])
pocket3 = body2.newObject("PartDesign::Pocket", "Pocket002")
pocket3.Profile = sketch25
pocket3.Length = 2
pocket3.Reversed = True

# Sketch on XY plane
sketch26 = body2.newObject("Sketcher::SketchObject", "Sketch025")
sketch26.AttachmentSupport = (doc.getObject("XY_Plane001"), [""])
sketch26.MapMode = "FlatFace"
sketch26.AttachmentOffset = App.Placement(Vector(0, 0, -1.2), App.Rotation())
sketch26.addGeometry(Part.Circle(Vector(-3.2, -3.5, 0), Vector(0, 0, 1), 0.7), False)
sketch26.addConstraint([
    Sketcher.Constraint("Diameter", 0, Q("1.4 mm")),
    Sketcher.Constraint("DistanceX", 0, 3, -1, 1, Q("3.25 mm")),
    Sketcher.Constraint("DistanceY", 0, 3, -1, 1, Q("3.45 mm")),
])
pocket4 = body2.newObject("PartDesign::Pocket", "Pocket003")
pocket4.Profile = sketch26
pocket4.Length = 2
pocket4.Reversed = True

# Sketch on XZ plane
sketch27 = body2.newObject("Sketcher::SketchObject", "Sketch026")
sketch27.AttachmentSupport = (doc.getObject("XZ_Plane001"), [""])
sketch27.MapMode = "FlatFace"
sketch27.AttachmentOffset = App.Placement(Vector(0, 0, -3.2), App.Rotation())
add_polygon(sketch27, [(-9.1, 12.3), (-9.1, 13.5), (9.1, 13.5), (9.1, 12.3)])  # lines 0-3
sketch27.addConstraint([
    Sketcher.Constraint("Vertical", 0),
    Sketcher.Constraint("Horizontal", 1),
    Sketcher.Constraint("Vertical", 2),
    Sketcher.Constraint("Horizontal", 3),
    Sketcher.Constraint("DistanceX", 1, 1, 1, 2, Q("18.2 mm")),
    Sketcher.Constraint("DistanceY", 0, 1, 0, 2, Q("1.2 mm")),
    Sketcher.Constraint("DistanceX", 0, 2, -1, 1, Q("9.1 mm")),
    Sketcher.Constraint("DistanceY", -1, 1, 0, 2, Q("13.5 mm")),
])
pocket5 = body2.newObject("PartDesign::Pocket", "Pocket004")
pocket5.Profile = sketch27
pocket5.Length = 0.2
pocket5.Reversed = True

doc.recompute()
